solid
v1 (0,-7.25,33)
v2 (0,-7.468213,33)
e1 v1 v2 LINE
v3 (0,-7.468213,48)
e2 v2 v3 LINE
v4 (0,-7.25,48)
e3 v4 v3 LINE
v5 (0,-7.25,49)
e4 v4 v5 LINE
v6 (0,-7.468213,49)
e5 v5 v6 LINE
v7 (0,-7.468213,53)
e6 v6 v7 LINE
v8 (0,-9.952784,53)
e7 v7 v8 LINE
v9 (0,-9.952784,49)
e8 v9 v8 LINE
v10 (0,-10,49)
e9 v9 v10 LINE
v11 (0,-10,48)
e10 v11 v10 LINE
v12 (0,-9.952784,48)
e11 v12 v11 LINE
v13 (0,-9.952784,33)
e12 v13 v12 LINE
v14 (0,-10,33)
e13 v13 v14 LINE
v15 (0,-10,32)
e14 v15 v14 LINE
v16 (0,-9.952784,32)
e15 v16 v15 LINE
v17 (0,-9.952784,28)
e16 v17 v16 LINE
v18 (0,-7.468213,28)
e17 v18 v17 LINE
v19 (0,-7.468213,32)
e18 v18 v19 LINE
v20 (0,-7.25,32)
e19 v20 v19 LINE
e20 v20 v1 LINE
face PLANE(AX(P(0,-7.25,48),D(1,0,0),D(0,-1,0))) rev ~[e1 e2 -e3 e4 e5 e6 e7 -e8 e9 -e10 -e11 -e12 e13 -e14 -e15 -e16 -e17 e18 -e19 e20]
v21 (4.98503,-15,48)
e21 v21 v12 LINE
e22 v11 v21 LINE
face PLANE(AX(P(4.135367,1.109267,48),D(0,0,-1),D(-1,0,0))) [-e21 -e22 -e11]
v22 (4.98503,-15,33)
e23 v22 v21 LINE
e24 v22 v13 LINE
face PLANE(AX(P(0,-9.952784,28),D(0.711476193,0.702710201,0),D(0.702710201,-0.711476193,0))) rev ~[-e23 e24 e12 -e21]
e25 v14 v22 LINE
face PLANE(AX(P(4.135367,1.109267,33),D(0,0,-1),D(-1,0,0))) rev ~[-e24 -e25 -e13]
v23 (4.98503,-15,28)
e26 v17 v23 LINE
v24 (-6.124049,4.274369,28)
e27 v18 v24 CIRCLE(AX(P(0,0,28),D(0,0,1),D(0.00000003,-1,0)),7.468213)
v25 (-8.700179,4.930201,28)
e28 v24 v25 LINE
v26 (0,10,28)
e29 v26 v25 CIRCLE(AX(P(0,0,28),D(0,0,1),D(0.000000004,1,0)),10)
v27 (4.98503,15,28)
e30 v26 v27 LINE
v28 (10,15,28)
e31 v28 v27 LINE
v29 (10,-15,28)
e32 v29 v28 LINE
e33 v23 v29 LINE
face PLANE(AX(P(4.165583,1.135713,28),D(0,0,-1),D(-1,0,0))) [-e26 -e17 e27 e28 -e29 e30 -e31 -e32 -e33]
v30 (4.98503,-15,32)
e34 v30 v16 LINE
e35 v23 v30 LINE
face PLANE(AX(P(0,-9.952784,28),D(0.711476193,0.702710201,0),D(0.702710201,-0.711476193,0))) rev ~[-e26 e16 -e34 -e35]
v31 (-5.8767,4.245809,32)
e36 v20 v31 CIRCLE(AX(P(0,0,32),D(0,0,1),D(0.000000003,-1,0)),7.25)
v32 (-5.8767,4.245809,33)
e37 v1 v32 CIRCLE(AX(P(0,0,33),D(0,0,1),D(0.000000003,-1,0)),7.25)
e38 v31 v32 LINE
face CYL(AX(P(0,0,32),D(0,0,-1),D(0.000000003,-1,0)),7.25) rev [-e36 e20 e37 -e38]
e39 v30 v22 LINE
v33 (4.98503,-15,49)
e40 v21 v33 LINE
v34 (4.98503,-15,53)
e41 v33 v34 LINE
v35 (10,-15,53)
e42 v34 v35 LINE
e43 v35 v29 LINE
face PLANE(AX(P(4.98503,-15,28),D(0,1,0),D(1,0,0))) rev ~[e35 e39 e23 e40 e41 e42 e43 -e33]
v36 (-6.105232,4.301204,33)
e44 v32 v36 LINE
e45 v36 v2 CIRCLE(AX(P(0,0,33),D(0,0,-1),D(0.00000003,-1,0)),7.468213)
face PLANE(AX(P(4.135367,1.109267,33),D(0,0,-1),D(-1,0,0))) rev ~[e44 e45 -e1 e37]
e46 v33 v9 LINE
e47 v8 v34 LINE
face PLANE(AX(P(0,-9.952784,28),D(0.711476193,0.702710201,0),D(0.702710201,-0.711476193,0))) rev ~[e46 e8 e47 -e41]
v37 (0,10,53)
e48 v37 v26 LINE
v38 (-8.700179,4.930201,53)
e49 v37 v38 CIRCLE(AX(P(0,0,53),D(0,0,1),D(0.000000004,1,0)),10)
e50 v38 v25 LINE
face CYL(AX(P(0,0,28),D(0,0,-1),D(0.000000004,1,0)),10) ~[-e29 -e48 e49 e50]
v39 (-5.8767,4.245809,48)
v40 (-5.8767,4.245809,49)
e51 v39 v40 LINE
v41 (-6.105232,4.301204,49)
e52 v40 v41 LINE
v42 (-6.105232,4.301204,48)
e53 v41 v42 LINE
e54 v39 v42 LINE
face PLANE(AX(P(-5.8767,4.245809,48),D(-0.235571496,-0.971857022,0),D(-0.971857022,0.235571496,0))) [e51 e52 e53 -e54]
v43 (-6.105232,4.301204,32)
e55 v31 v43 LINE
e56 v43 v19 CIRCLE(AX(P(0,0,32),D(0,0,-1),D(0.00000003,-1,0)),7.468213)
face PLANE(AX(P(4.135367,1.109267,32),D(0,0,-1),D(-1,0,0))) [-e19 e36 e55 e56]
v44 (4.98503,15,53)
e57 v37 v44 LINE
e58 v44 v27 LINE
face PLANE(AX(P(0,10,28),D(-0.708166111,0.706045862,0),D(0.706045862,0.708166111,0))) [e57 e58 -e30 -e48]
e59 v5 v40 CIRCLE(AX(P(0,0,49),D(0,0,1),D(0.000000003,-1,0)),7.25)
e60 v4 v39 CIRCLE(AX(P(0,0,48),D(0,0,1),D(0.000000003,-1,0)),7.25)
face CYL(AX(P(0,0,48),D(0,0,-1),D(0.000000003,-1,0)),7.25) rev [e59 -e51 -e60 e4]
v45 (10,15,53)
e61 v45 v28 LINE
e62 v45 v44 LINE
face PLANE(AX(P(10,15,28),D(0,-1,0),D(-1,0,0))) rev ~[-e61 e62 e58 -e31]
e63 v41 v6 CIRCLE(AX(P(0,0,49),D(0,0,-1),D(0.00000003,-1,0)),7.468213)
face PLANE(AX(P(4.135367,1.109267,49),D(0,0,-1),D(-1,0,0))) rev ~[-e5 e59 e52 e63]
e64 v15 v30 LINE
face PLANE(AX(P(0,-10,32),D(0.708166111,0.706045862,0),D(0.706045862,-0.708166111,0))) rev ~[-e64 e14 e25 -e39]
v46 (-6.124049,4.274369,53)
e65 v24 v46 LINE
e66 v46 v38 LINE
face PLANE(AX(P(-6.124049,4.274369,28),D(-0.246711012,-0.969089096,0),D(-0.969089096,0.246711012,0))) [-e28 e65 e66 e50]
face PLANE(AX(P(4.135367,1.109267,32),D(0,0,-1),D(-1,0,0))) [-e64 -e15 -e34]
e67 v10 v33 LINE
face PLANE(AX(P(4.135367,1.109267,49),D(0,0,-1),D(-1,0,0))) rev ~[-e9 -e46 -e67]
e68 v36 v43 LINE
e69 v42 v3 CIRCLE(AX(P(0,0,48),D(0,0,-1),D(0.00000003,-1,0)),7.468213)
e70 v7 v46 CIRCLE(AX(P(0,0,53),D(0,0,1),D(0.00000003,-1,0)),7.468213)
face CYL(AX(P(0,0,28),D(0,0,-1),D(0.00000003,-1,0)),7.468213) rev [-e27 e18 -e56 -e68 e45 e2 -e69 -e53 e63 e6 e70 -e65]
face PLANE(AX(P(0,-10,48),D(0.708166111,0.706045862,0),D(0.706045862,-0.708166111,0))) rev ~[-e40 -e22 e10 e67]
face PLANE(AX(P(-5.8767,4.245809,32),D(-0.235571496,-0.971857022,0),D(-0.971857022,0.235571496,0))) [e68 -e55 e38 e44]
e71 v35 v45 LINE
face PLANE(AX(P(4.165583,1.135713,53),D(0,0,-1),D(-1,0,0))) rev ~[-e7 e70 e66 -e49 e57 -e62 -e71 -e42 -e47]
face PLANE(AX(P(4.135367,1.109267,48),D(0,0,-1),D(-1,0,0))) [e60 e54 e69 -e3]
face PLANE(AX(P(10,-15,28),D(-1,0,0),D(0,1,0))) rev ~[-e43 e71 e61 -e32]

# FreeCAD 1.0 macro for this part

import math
import FreeCAD as App
import Part
import Sketcher
Q = App.Units.Quantity

doc = App.newDocument("Part")
body = doc.addObject("PartDesign::Body", "Body")

# Sketch on XY plane
sketch1 = doc.addObject("Sketcher::SketchObject", "Sketch")
body.addObject(sketch1)
sketch1.AttachmentSupport = (doc.XY_Plane, [""])
sketch1.MapMode = "FlatFace"
sketch1.AttachmentOffset = App.Placement(App.Vector(0, 0, 32), App.Rotation())
sketch1.addGeometry(Part.LineSegment(App.Vector(-8.7, 4.9, 0), App.Vector(-5.9, 4.2, 0)), False)
sketch1.addGeometry(Part.ArcOfCircle(Part.Circle(App.Vector(0, 0, 0), App.Vector(0, 0, 1), 7.2), math.radians(-90), math.radians(144)), False)
sketch1.addGeometry(Part.LineSegment(App.Vector(0, -7.2, 0), App.Vector(0, -10, 0)), False)
sketch1.addGeometry(Part.LineSegment(App.Vector(0, -10, 0), App.Vector(5, -15, 0)), False)
sketch1.addGeometry(Part.LineSegment(App.Vector(5, -15, 0), App.Vector(10, -15, 0)), False)
sketch1.addGeometry(Part.LineSegment(App.Vector(10, -15, 0), App.Vector(10, 15, 0)), False)
sketch1.addGeometry(Part.LineSegment(App.Vector(10, 15, 0), App.Vector(5, 15, 0)), False)
sketch1.addGeometry(Part.LineSegment(App.Vector(5, 15, 0), App.Vector(0, 10, 0)), False)
sketch1.addGeometry(Part.ArcOfCircle(Part.Circle(App.Vector(0, 0, 0), App.Vector(0, 0, 1), 10), math.radians(90), math.radians(150)), False)
sketch1.addConstraint(Sketcher.Constraint("Coincident", 0, 2, 1, 2))
sketch1.addConstraint(Sketcher.Constraint("Coincident", 1, 1, 2, 1))
sketch1.addConstraint(Sketcher.Constraint("Coincident", 2, 2, 3, 1))
sketch1.addConstraint(Sketcher.Constraint("Coincident", 3, 2, 4, 1))
sketch1.addConstraint(Sketcher.Constraint("Coincident", 4, 2, 5, 1))
sketch1.addConstraint(Sketcher.Constraint("Coincident", 5, 2, 6, 1))
sketch1.addConstraint(Sketcher.Constraint("Coincident", 6, 2, 7, 1))
sketch1.addConstraint(Sketcher.Constraint("Coincident", 7, 2, 8, 1))
sketch1.addConstraint(Sketcher.Constraint("Coincident", 8, 2, 0, 1))
sketch1.addConstraint(Sketcher.Constraint("Vertical", 2))
sketch1.addConstraint(Sketcher.Constraint("Horizontal", 4))
sketch1.addConstraint(Sketcher.Constraint("Vertical", 5))
sketch1.addConstraint(Sketcher.Constraint("Horizontal", 6))
sketch1.addConstraint(Sketcher.Constraint("Coincident", 1, 3, -1, 1))
sketch1.addConstraint(Sketcher.Constraint("Coincident", 8, 3, -1, 1))
sketch1.addConstraint(Sketcher.Constraint("Symmetric", 2, 2, 7, 2, -1, 1))
sketch1.addConstraint(Sketcher.Constraint("Symmetric", 3, 2, 6, 2, -1))
sketch1.addConstraint(Sketcher.Constraint("PointOnObject", 1, 1, -2))
sketch1.addConstraint(Sketcher.Constraint("Radius", 8, Q("10 mm")))
sketch1.addConstraint(Sketcher.Constraint("DistanceY", 5, 1, 5, 2, Q("30 mm")))
sketch1.addConstraint(Sketcher.Constraint("Radius", 1, Q("7.25 mm")))
sketch1.addConstraint(Sketcher.Constraint("DistanceX", -1, 1, 4, 2, Q("10 mm")))
sketch1.addConstraint(Sketcher.Constraint("DistanceX", 4, 1, 4, 2, Q("5.01497 mm")))
sketch1.addConstraint(Sketcher.Constraint("DistanceX", 0, 2, -1, 1, Q("5.8767 mm")))
sketch1.addConstraint(Sketcher.Constraint("DistanceY", -1, 1, 8, 2, Q("4.930201 mm")))
pad1 = doc.addObject("PartDesign::Pad", "Pad")
body.addObject(pad1)
pad1.Profile = sketch1
pad1.Length = 1
body2 = doc.addObject("PartDesign::Body", "Body001")

# Sketch on XY plane
sketch2 = doc.addObject("Sketcher::SketchObject", "Sketch001")
body2.addObject(sketch2)
sketch2.AttachmentSupport = (doc.getObject("XY_Plane001"), [""])
sketch2.MapMode = "FlatFace"
sketch2.AttachmentOffset = App.Placement(App.Vector(0, 0, 48), App.Rotation())
sketch2.addGeometry(Part.LineSegment(App.Vector(-8.7, 4.9, 0), App.Vector(-5.9, 4.2, 0)), False)
sketch2.addGeometry(Part.ArcOfCircle(Part.Circle(App.Vector(0, 0, 0), App.Vector(0, 0, 1), 7.2), math.radians(-90), math.radians(144)), False)
sketch2.addGeometry(Part.LineSegment(App.Vector(0, -7.2, 0), App.Vector(0, -10, 0)), False)
sketch2.addGeometry(Part.LineSegment(App.Vector(0, -10, 0), App.Vector(5, -15, 0)), False)
sketch2.addGeometry(Part.LineSegment(App.Vector(5, -15, 0), App.Vector(10, -15, 0)), False)
sketch2.addGeometry(Part.LineSegment(App.Vector(10, -15, 0), App.Vector(10, 15, 0)), False)
sketch2.addGeometry(Part.LineSegment(App.Vector(10, 15, 0), App.Vector(5, 15, 0)), False)
sketch2.addGeometry(Part.LineSegment(App.Vector(5, 15, 0), App.Vector(0, 10, 0)), False)
sketch2.addGeometry(Part.ArcOfCircle(Part.Circle(App.Vector(0, 0, 0), App.Vector(0, 0, 1), 10), math.radians(90), math.radians(150)), False)
sketch2.addConstraint(Sketcher.Constraint("Coincident", 0, 2, 1, 2))
sketch2.addConstraint(Sketcher.Constraint("Coincident", 1, 1, 2, 1))
sketch2.addConstraint(Sketcher.Constraint("Coincident", 2, 2, 3, 1))
sketch2.addConstraint(Sketcher.Constraint("Coincident", 3, 2, 4, 1))
sketch2.addConstraint(Sketcher.Constraint("Coincident", 4, 2, 5, 1))
sketch2.addConstraint(Sketcher.Constraint("Coincident", 5, 2, 6, 1))
sketch2.addConstraint(Sketcher.Constraint("Coincident", 6, 2, 7, 1))
sketch2.addConstraint(Sketcher.Constraint("Coincident", 7, 2, 8, 1))
sketch2.addConstraint(Sketcher.Constraint("Coincident", 8, 2, 0, 1))
sketch2.addConstraint(Sketcher.Constraint("Vertical", 2))
sketch2.addConstraint(Sketcher.Constraint("Horizontal", 4))
sketch2.addConstraint(Sketcher.Constraint("Vertical", 5))
sketch2.addConstraint(Sketcher.Constraint("Horizontal", 6))
sketch2.addConstraint(Sketcher.Constraint("Coincident", 1, 3, -1, 1))
sketch2.addConstraint(Sketcher.Constraint("Coincident", 8, 3, -1, 1))
sketch2.addConstraint(Sketcher.Constraint("Symmetric", 2, 2, 7, 2, -1, 1))
sketch2.addConstraint(Sketcher.Constraint("Symmetric", 3, 2, 6, 2, -1))
sketch2.addConstraint(Sketcher.Constraint("PointOnObject", 1, 1, -2))
sketch2.addConstraint(Sketcher.Constraint("Radius", 8, Q("10 mm")))
sketch2.addConstraint(Sketcher.Constraint("DistanceY", 5, 1, 5, 2, Q("30 mm")))
sketch2.addConstraint(Sketcher.Constraint("Radius", 1, Q("7.25 mm")))
sketch2.addConstraint(Sketcher.Constraint("DistanceX", -1, 1, 4, 2, Q("10 mm")))
sketch2.addConstraint(Sketcher.Constraint("DistanceX", 4, 1, 4, 2, Q("5.01497 mm")))
sketch2.addConstraint(Sketcher.Constraint("DistanceX", 0, 2, -1, 1, Q("5.8767 mm")))
sketch2.addConstraint(Sketcher.Constraint("DistanceY", -1, 1, 8, 2, Q("4.930201 mm")))
pad2 = doc.addObject("PartDesign::Pad", "Pad001")
body2.addObject(pad2)
pad2.Profile = sketch2
pad2.Length = 1
body3 = doc.addObject("PartDesign::Body", "Body002")

# Sketch on XY plane
sketch3 = doc.addObject("Sketcher::SketchObject", "Sketch002")
body3.addObject(sketch3)
sketch3.AttachmentSupport = (doc.getObject("XY_Plane002"), [""])
sketch3.MapMode = "FlatFace"
sketch3.AttachmentOffset = App.Placement(App.Vector(0, 0, 28), App.Rotation())
sketch3.addGeometry(Part.LineSegment(App.Vector(-8.7, 4.9, 0), App.Vector(-6.1, 4.3, 0)), False)
sketch3.addGeometry(Part.ArcOfCircle(Part.Circle(App.Vector(0, 0, 0), App.Vector(0, 0, 1), 7.5), math.radians(-90), math.radians(145)), False)
sketch3.addGeometry(Part.LineSegment(App.Vector(0, -7.5, 0), App.Vector(0, -10, 0)), False)
sketch3.addGeometry(Part.LineSegment(App.Vector(0, -10, 0), App.Vector(5, -15, 0)), False)
sketch3.addGeometry(Part.LineSegment(App.Vector(5, -15, 0), App.Vector(10, -15, 0)), False)
sketch3.addGeometry(Part.LineSegment(App.Vector(10, -15, 0), App.Vector(10, 15, 0)), False)
sketch3.addGeometry(Part.LineSegment(App.Vector(10, 15, 0), App.Vector(5, 15, 0)), False)
sketch3.addGeometry(Part.LineSegment(App.Vector(5, 15, 0), App.Vector(0, 10, 0)), False)
sketch3.addGeometry(Part.ArcOfCircle(Part.Circle(App.Vector(0, 0, 0), App.Vector(0, 0, 1), 10), math.radians(90), math.radians(150)), False)
sketch3.addConstraint(Sketcher.Constraint("Coincident", 0, 2, 1, 2))
sketch3.addConstraint(Sketcher.Constraint("Coincident", 1, 1, 2, 1))
sketch3.addConstraint(Sketcher.Constraint("Coincident", 2, 2, 3, 1))
sketch3.addConstraint(Sketcher.Constraint("Coincident", 3, 2, 4, 1))
sketch3.addConstraint(Sketcher.Constraint("Coincident", 4, 2, 5, 1))
sketch3.addConstraint(Sketcher.Constraint("Coincident", 5, 2, 6, 1))
sketch3.addConstraint(Sketcher.Constraint("Coincident", 6, 2, 7, 1))
sketch3.addConstraint(Sketcher.Constraint("Coincident", 7, 2, 8, 1))
sketch3.addConstraint(Sketcher.Constraint("Coincident", 8, 2, 0, 1))
sketch3.addConstraint(Sketcher.Constraint("Vertical", 2))
sketch3.addConstraint(Sketcher.Constraint("Horizontal", 4))
sketch3.addConstraint(Sketcher.Constraint("Vertical", 5))
sketch3.addConstraint(Sketcher.Constraint("Horizontal", 6))
sketch3.addConstraint(Sketcher.Constraint("Coincident", 1, 3, -1, 1))
sketch3.addConstraint(Sketcher.Constraint("Coincident", 8, 3, -1, 1))
sketch3.addConstraint(Sketcher.Constraint("Symmetric", 3, 2, 6, 2, -1))
sketch3.addConstraint(Sketcher.Constraint("PointOnObject", 1, 1, -2))
sketch3.addConstraint(Sketcher.Constraint("PointOnObject", 7, 2, -2))
sketch3.addConstraint(Sketcher.Constraint("Radius", 8, Q("10 mm")))
sketch3.addConstraint(Sketcher.Constraint("DistanceY", 5, 1, 5, 2, Q("30 mm")))
sketch3.addConstraint(Sketcher.Constraint("DistanceX", -1, 1, 4, 2, Q("10 mm")))
sketch3.addConstraint(Sketcher.Constraint("Radius", 1, Q("7.468213 mm")))
sketch3.addConstraint(Sketcher.Constraint("Distance", 0, Q("2.6583 mm")))
sketch3.addConstraint(Sketcher.Constraint("DistanceX", 4, 1, 4, 2, Q("5.01497 mm")))
sketch3.addConstraint(Sketcher.Constraint("DistanceY", 2, 2, 2, 1, Q("2.484571 mm")))
sketch3.addConstraint(Sketcher.Constraint("DistanceY", -1, 1, 8, 2, Q("4.930201 mm")))
pad3 = doc.addObject("PartDesign::Pad", "Pad002")
body3.addObject(pad3)
pad3.Profile = sketch3
pad3.Length = 25
doc.recompute()

boolean = doc.addObject("PartDesign::Boolean", "Boolean")
body3.addObject(boolean)
boolean.Type = "Fuse"
boolean.addObjects([body])
doc.recompute()

boolean2 = doc.addObject("PartDesign::Boolean", "Boolean001")
body3.addObject(boolean2)
boolean2.Type = "Fuse"
boolean2.addObjects([body2])

doc.recompute()
